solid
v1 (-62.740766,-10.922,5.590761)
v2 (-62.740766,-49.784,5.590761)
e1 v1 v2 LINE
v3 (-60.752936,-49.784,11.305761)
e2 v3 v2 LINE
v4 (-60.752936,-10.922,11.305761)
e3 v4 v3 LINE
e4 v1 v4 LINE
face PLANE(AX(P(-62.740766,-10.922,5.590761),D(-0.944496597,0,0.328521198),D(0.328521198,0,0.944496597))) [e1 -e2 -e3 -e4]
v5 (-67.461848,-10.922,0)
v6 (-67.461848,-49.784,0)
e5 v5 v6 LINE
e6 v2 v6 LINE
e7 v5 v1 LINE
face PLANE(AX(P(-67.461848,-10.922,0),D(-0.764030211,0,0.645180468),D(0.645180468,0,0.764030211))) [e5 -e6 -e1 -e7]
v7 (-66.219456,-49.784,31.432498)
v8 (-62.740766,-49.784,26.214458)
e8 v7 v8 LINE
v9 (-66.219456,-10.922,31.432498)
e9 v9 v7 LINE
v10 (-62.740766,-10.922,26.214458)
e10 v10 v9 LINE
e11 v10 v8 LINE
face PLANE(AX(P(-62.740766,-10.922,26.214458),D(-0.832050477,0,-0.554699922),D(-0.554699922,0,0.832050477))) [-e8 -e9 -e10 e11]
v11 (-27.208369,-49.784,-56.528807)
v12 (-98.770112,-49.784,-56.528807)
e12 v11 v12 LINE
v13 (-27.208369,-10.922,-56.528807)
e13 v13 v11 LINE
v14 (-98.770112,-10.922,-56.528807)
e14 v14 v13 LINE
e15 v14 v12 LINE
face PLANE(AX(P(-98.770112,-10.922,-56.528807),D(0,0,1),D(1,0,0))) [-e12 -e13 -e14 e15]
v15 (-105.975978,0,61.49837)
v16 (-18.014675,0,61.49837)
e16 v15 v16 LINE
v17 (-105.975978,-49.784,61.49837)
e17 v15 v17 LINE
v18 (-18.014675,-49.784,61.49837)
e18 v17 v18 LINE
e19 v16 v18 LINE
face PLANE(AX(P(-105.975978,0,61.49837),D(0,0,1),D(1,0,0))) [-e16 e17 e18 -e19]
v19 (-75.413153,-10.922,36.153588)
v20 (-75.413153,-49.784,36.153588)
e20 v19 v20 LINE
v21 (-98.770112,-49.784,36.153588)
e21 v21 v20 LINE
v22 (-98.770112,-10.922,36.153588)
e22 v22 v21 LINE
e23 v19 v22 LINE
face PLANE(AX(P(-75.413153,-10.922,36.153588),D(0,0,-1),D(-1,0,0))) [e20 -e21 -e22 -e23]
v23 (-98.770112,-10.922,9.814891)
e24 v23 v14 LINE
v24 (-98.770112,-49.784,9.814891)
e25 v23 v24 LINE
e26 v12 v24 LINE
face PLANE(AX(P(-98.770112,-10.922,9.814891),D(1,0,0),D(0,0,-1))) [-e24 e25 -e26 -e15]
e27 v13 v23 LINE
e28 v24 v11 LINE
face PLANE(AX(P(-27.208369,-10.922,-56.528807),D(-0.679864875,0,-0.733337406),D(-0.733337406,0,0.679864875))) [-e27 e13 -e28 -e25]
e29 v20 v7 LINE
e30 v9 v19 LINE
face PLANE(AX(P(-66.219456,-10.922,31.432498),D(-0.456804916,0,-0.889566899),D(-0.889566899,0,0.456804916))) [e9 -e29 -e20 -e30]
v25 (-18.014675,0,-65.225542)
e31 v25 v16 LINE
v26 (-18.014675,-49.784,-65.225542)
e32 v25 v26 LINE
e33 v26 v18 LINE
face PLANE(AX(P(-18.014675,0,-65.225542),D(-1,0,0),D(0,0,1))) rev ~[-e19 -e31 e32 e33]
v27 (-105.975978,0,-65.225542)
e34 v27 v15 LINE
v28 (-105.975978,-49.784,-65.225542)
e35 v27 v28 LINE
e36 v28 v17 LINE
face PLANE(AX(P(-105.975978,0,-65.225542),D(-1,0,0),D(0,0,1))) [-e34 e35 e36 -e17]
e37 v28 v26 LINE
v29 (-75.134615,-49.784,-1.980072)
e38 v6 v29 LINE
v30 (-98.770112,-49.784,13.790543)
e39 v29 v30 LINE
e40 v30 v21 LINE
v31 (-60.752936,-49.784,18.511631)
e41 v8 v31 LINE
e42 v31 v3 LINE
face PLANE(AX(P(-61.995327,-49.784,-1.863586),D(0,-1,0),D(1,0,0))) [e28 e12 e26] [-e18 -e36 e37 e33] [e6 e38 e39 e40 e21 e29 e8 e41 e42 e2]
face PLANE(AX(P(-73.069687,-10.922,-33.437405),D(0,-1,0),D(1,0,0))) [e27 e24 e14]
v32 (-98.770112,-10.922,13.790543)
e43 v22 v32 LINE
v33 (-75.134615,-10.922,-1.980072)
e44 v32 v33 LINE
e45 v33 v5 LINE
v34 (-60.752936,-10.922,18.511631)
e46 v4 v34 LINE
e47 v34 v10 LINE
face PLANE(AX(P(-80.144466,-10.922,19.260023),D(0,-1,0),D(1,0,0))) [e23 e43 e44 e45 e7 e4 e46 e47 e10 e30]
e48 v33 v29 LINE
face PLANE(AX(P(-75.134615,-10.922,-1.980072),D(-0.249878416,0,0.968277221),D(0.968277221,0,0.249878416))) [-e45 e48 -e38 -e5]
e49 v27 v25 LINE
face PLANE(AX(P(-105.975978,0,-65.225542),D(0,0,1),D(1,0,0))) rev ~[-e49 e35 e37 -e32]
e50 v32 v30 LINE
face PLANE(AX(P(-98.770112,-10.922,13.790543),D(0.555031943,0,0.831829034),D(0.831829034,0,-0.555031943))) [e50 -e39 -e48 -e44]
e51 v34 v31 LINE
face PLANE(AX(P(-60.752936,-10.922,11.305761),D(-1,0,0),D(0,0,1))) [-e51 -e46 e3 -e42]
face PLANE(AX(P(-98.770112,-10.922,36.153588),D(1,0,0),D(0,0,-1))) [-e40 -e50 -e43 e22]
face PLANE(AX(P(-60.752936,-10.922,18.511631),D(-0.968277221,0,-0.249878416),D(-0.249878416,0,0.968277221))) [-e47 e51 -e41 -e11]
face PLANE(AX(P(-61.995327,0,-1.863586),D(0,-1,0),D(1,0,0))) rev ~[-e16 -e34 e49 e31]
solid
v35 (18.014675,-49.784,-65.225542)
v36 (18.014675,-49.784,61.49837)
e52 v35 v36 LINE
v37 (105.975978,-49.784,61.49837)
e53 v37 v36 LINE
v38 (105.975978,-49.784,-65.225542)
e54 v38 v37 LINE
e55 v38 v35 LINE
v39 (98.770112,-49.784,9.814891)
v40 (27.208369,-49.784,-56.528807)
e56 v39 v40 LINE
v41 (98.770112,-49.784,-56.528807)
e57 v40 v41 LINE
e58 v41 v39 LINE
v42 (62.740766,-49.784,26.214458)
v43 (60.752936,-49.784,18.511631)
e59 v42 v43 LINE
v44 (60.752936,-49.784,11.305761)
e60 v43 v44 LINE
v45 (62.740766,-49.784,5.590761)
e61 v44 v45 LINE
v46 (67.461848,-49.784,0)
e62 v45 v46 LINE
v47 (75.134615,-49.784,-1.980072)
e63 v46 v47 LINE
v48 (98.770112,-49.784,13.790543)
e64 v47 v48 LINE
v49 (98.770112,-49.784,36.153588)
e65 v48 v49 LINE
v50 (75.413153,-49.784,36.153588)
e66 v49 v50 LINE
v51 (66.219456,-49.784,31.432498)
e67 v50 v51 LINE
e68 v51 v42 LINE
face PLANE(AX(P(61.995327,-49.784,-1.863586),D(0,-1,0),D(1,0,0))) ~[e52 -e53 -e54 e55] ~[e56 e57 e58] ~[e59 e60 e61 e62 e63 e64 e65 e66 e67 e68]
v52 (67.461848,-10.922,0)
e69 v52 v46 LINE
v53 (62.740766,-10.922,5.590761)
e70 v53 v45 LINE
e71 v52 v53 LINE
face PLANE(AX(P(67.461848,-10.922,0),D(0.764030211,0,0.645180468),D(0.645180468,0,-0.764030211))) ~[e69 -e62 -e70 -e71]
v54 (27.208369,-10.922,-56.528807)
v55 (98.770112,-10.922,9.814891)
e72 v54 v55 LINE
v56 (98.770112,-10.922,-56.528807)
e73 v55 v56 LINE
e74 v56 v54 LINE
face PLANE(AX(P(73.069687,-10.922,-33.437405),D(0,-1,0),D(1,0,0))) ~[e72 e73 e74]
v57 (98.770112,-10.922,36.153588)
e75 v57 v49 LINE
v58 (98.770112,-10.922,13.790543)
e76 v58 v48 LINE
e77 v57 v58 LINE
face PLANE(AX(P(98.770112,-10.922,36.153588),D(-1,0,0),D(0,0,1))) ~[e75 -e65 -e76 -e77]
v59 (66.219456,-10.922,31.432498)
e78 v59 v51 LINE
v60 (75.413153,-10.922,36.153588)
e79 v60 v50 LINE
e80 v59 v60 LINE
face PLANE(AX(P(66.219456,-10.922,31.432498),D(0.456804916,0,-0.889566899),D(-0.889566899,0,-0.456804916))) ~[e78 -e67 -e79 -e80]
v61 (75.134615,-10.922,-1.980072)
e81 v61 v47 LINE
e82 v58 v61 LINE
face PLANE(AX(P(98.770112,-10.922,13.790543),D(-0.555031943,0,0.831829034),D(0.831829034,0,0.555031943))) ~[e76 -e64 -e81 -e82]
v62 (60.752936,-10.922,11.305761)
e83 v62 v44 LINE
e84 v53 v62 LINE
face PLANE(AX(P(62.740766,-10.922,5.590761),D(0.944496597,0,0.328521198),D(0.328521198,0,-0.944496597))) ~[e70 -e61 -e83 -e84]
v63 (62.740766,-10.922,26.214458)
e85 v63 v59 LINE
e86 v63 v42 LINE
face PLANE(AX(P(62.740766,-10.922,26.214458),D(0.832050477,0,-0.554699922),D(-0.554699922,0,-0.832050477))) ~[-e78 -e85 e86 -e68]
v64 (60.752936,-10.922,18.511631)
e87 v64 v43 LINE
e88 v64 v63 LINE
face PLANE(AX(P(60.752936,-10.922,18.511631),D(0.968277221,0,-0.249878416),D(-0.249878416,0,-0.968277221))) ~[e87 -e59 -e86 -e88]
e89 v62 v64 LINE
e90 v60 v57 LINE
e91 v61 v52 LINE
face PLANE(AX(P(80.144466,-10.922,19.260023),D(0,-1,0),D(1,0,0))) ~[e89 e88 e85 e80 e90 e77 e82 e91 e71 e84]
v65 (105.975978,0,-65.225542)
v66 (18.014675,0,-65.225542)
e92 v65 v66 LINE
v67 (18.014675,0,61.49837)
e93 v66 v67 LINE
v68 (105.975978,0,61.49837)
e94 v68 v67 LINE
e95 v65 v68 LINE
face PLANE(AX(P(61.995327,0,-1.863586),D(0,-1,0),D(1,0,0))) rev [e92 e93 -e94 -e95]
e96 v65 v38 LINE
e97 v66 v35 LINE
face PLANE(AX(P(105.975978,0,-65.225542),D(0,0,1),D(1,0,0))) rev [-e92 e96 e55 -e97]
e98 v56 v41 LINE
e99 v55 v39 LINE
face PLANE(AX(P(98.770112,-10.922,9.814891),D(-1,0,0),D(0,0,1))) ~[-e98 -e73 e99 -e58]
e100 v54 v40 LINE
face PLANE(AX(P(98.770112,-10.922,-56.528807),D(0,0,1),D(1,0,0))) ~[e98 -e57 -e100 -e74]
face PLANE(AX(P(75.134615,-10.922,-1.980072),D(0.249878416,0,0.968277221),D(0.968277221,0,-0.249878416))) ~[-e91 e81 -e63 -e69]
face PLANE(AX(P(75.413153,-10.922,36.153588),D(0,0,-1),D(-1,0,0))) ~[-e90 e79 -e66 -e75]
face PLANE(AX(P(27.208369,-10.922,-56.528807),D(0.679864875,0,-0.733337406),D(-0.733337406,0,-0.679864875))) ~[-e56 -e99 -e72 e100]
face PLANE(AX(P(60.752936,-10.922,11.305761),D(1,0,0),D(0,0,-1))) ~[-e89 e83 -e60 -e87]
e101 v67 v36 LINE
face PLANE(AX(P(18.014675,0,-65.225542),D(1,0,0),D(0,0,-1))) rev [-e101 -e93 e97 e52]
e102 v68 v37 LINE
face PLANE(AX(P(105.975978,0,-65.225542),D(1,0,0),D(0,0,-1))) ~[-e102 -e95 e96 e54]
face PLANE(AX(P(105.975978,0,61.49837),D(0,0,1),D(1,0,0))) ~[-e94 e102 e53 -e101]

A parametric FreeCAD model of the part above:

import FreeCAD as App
import Part
import Sketcher

V = App.Vector
Q = App.Units.Quantity

doc = App.newDocument("Part")
body = doc.addObject("PartDesign::Body", "Body")

# Sketch on XZ plane
sketch1 = doc.addObject("Sketcher::SketchObject", "Sketch")
body.addObject(sketch1)
sketch1.AttachmentSupport = (doc.XZ_Plane, [""])
sketch1.MapMode = "FlatFace"
sketch1.addGeometry([
    Part.LineSegment(V(-106, 61, 0), V(-106, -65, 0)),
    Part.LineSegment(V(-106, -65, 0), V(-18, -65, 0)),
    Part.LineSegment(V(-18, -65, 0), V(-18, 61, 0)),
    Part.LineSegment(V(-18, 61, 0), V(-106, 61, 0)),
], False)
sketch1.addConstraint([
    Sketcher.Constraint("Coincident", 0, 2, 1, 1),
    Sketcher.Constraint("Coincident", 1, 2, 2, 1),
    Sketcher.Constraint("Coincident", 2, 2, 3, 1),
    Sketcher.Constraint("Coincident", 3, 2, 0, 1),
    Sketcher.Constraint("Vertical", 0),
    Sketcher.Constraint("Horizontal", 1),
    Sketcher.Constraint("Vertical", 2),
    Sketcher.Constraint("Horizontal", 3),
    Sketcher.Constraint("DistanceY", 0, 2, 0, 1, Q("126.723912 mm")),
    Sketcher.Constraint("DistanceX", 1, 1, 1, 2, Q("87.961303 mm")),
    Sketcher.Constraint("DistanceX", 0, 2, -1, 1, Q("105.975978 mm")),
    Sketcher.Constraint("DistanceY", 0, 2, -1, 1, Q("65.225542 mm")),
])
pad1 = doc.addObject("PartDesign::Pad", "Pad")
body.addObject(pad1)
pad1.Profile = sketch1
pad1.Length = Q("1.96 in")

# Sketch on XZ plane
sketch2 = doc.addObject("Sketcher::SketchObject", "Sketch001")
body.addObject(sketch2)
sketch2.AttachmentSupport = (doc.XZ_Plane, [""])
sketch2.MapMode = "FlatFace"
sketch2.AttachmentOffset = App.Placement(V(0, 0, 0.43 * 25.4), App.Rotation())
sketch2.addGeometry([
    Part.LineSegment(V(-27, -57, 0), V(-99, 10, 0)),  # 0
    Part.LineSegment(V(-99, 10, 0), V(-99, -57, 0)),  # 1
    Part.LineSegment(V(-99, -57, 0), V(-27, -57, 0)),  # 2
    Part.LineSegment(V(-99, 36, 0), V(-99, 14, 0)),  # 3
    Part.LineSegment(V(-99, 14, 0), V(-75, -2, 0)),  # 4
    Part.LineSegment(V(-75, -2, 0), V(-67, 0, 0)),  # 5
    Part.LineSegment(V(-67, 0, 0), V(-63, 6, 0)),  # 6
    Part.LineSegment(V(-63, 6, 0), V(-61, 11, 0)),  # 7
    Part.LineSegment(V(-61, 11, 0), V(-61, 19, 0)),  # 8
    Part.LineSegment(V(-61, 19, 0), V(-63, 26, 0)),  # 9
    Part.LineSegment(V(-63, 26, 0), V(-66, 31, 0)),  # 10
    Part.LineSegment(V(-66, 31, 0), V(-75, 36, 0)),  # 11
    Part.LineSegment(V(-75, 36, 0), V(-99, 36, 0)),  # 12
], False)
sketch2.addConstraint([
    Sketcher.Constraint("Coincident", 0, 2, 1, 1),
    Sketcher.Constraint("Coincident", 1, 2, 2, 1),
    Sketcher.Constraint("Coincident", 2, 2, 0, 1),
    Sketcher.Constraint("Coincident", 3, 2, 4, 1),
    Sketcher.Constraint("Coincident", 4, 2, 5, 1),
    Sketcher.Constraint("Coincident", 5, 2, 6, 1),
    Sketcher.Constraint("Coincident", 6, 2, 7, 1),
    Sketcher.Constraint("Coincident", 7, 2, 8, 1),
    Sketcher.Constraint("Coincident", 8, 2, 9, 1),
    Sketcher.Constraint("Coincident", 9, 2, 10, 1),
    Sketcher.Constraint("Coincident", 10, 2, 11, 1),
    Sketcher.Constraint("Coincident", 11, 2, 12, 1),
    Sketcher.Constraint("Coincident", 12, 2, 3, 1),
    Sketcher.Constraint("Vertical", 1),
    Sketcher.Constraint("Horizontal", 2),
    Sketcher.Constraint("Vertical", 3),
    Sketcher.Constraint("Vertical", 8),
    Sketcher.Constraint("Horizontal", 12),
    Sketcher.Constraint("PointOnObject", 5, 2, -1),
    Sketcher.Constraint("Perpendicular", 5, 9),
    Sketcher.Constraint("Vertical", 1, 2, 3, 2),
    Sketcher.Constraint("Vertical", 6, 2, 9, 2),
    Sketcher.Constraint("DistanceY", 6, 2, 7, 2, Q("0.225 in")),
    Sketcher.Constraint("DistanceY", -1, 1, 10, 2, Q("1.2374999 in")),
    Sketcher.Constraint("DistanceX", 12, 2, 12, 1, Q("23.356959 mm")),
    Sketcher.Constraint("DistanceY", 8, 1, 8, 2, Q("7.20587 mm")),
    Sketcher.Constraint("Distance", 6, Q("7.317461 mm")),
    Sketcher.Constraint("Distance", 7, Q("6.050842 mm")),
    Sketcher.Constraint("Distance", 9, Q("7.955188 mm")),
    Sketcher.Constraint("DistanceX", 2, 1, 2, 2, Q("71.561743 mm")),
    Sketcher.Constraint("DistanceY", 1, 2, 1, 1, Q("66.343698 mm")),
    Sketcher.Constraint("DistanceY", 3, 2, 3, 1, Q("22.363045 mm")),
    Sketcher.Constraint("DistanceX", 0, 2, -1, 1, Q("98.770112 mm")),
    Sketcher.Constraint("DistanceY", -1, 1, 0, 2, Q("9.814891 mm")),
    Sketcher.Constraint("DistanceX", 5, 2, -1, 1, Q("67.461848 mm")),
    Sketcher.Constraint("DistanceY", -1, 1, 6, 2, Q("5.590761 mm")),
    Sketcher.Constraint("DistanceY", -1, 1, 11, 2, Q("36.153588 mm")),
    Sketcher.Constraint("DistanceX", 4, 2, 6, 2, Q("12.393849 mm")),
    Sketcher.Constraint("DistanceX", 10, 2, 9, 2, Q("3.478691 mm")),
])
pocket1 = doc.addObject("PartDesign::Pocket", "Pocket")
body.addObject(pocket1)
pocket1.Profile = sketch2
pocket1.Length = Q("2.35 in")
pocket1.Reversed = True
body2 = doc.addObject("PartDesign::Body", "Body001")
doc.recompute()

mirroring = doc.addObject("Part::Mirroring", "Mirroring")
mirroring.Source = body
mirroring.Base = V(0, 0, 0)
mirroring.Normal = V(1, 0, 0)
body2.BaseFeature = mirroring
doc.recompute()
mirroring.Visibility = False

doc.recompute()
